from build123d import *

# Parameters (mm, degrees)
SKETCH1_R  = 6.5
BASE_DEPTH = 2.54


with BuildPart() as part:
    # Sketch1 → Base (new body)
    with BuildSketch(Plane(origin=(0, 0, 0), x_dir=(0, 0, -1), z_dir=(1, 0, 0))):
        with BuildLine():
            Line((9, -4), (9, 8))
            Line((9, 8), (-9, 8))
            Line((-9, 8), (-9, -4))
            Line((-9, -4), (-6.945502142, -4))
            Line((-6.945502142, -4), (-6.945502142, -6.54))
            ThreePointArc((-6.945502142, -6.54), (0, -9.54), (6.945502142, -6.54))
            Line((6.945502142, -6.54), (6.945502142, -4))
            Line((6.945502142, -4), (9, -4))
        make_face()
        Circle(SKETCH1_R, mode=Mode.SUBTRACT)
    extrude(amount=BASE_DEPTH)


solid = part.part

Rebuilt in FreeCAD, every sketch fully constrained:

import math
import FreeCAD as App
import Part
import Sketcher

V = App.Vector

doc = App.newDocument("Part")
body = doc.addObject("PartDesign::Body", "Body")

# Sketch on YZ plane
sketch1 = body.newObject("Sketcher::SketchObject", "Sketch")
sketch1.AttachmentSupport = (doc.getObject("YZ_Plane"), [""])
sketch1.MapMode = "FlatFace"
sketch1.addGeometry(Part.LineSegment(V(-4, -9, 0), V(8, -9, 0)), False)
sketch1.addGeometry(Part.LineSegment(V(8, -9, 0), V(8, 9, 0)), False)
sketch1.addGeometry(Part.LineSegment(V(8, 9, 0), V(-4, 9, 0)), False)
sketch1.addGeometry(Part.LineSegment(V(-4, 9, 0), V(-4, 6.945502, 0)), False)
sketch1.addGeometry(Part.LineSegment(V(-4, 6.945502, 0), V(-6.54, 6.945502, 0)), False)
sketch1.addGeometry(Part.ArcOfCircle(Part.Circle(V(0, 0, 0), V(0, 0, 1), 9.54), math.radians(133.277664), math.radians(226.722336)), False)
sketch1.addGeometry(Part.LineSegment(V(-6.54, -6.945502, 0), V(-4, -6.945502, 0)), False)
sketch1.addGeometry(Part.LineSegment(V(-4, -6.945502, 0), V(-4, -9, 0)), False)
sketch1.addGeometry(Part.Circle(V(0, 0, 0), V(0, 0, 1), 6.5), False)
sketch1.addConstraint(Sketcher.Constraint("Coincident", 0, 2, 1, 1))
sketch1.addConstraint(Sketcher.Constraint("Coincident", 1, 2, 2, 1))
sketch1.addConstraint(Sketcher.Constraint("Coincident", 2, 2, 3, 1))
sketch1.addConstraint(Sketcher.Constraint("Coincident", 3, 2, 4, 1))
sketch1.addConstraint(Sketcher.Constraint("Coincident", 4, 2, 5, 1))
sketch1.addConstraint(Sketcher.Constraint("Coincident", 5, 2, 6, 1))
sketch1.addConstraint(Sketcher.Constraint("Coincident", 6, 2, 7, 1))
sketch1.addConstraint(Sketcher.Constraint("Coincident", 7, 2, 0, 1))
sketch1.addConstraint(Sketcher.Constraint("Horizontal", 0))
sketch1.addConstraint(Sketcher.Constraint("Vertical", 1))
sketch1.addConstraint(Sketcher.Constraint("Horizontal", 2))
sketch1.addConstraint(Sketcher.Constraint("Vertical", 3))
sketch1.addConstraint(Sketcher.Constraint("Horizontal", 4))
sketch1.addConstraint(Sketcher.Constraint("Horizontal", 6))
sketch1.addConstraint(Sketcher.Constraint("Vertical", 7))
sketch1.addConstraint(Sketcher.Constraint("Coincident", 5, 3, -1, 1))
sketch1.addConstraint(Sketcher.Constraint("Coincident", 8, 3, -1, 1))
sketch1.addConstraint(Sketcher.Constraint("Symmetric", 3, 2, 6, 2, -1))
sketch1.addConstraint(Sketcher.Constraint("Equal", 3, 7))
sketch1.addConstraint(Sketcher.Constraint("Diameter", 8, 13.0))
sketch1.addConstraint(Sketcher.Constraint("DistanceX", 0, 1, 0, 2, 12.0))
sketch1.addConstraint(Sketcher.Constraint("DistanceY", 1, 1, 1, 2, 18.0))
sketch1.addConstraint(Sketcher.Constraint("Radius", 5, 9.54))
sketch1.addConstraint(Sketcher.Constraint("DistanceX", -1, 1, 0, 2, 8.0))
sketch1.addConstraint(Sketcher.Constraint("DistanceX", 4, 2, 4, 1, 2.54))
pad1 = body.newObject("PartDesign::Pad", "Pad")
pad1.Profile = sketch1
pad1.Length = 2.54

doc.recompute()
